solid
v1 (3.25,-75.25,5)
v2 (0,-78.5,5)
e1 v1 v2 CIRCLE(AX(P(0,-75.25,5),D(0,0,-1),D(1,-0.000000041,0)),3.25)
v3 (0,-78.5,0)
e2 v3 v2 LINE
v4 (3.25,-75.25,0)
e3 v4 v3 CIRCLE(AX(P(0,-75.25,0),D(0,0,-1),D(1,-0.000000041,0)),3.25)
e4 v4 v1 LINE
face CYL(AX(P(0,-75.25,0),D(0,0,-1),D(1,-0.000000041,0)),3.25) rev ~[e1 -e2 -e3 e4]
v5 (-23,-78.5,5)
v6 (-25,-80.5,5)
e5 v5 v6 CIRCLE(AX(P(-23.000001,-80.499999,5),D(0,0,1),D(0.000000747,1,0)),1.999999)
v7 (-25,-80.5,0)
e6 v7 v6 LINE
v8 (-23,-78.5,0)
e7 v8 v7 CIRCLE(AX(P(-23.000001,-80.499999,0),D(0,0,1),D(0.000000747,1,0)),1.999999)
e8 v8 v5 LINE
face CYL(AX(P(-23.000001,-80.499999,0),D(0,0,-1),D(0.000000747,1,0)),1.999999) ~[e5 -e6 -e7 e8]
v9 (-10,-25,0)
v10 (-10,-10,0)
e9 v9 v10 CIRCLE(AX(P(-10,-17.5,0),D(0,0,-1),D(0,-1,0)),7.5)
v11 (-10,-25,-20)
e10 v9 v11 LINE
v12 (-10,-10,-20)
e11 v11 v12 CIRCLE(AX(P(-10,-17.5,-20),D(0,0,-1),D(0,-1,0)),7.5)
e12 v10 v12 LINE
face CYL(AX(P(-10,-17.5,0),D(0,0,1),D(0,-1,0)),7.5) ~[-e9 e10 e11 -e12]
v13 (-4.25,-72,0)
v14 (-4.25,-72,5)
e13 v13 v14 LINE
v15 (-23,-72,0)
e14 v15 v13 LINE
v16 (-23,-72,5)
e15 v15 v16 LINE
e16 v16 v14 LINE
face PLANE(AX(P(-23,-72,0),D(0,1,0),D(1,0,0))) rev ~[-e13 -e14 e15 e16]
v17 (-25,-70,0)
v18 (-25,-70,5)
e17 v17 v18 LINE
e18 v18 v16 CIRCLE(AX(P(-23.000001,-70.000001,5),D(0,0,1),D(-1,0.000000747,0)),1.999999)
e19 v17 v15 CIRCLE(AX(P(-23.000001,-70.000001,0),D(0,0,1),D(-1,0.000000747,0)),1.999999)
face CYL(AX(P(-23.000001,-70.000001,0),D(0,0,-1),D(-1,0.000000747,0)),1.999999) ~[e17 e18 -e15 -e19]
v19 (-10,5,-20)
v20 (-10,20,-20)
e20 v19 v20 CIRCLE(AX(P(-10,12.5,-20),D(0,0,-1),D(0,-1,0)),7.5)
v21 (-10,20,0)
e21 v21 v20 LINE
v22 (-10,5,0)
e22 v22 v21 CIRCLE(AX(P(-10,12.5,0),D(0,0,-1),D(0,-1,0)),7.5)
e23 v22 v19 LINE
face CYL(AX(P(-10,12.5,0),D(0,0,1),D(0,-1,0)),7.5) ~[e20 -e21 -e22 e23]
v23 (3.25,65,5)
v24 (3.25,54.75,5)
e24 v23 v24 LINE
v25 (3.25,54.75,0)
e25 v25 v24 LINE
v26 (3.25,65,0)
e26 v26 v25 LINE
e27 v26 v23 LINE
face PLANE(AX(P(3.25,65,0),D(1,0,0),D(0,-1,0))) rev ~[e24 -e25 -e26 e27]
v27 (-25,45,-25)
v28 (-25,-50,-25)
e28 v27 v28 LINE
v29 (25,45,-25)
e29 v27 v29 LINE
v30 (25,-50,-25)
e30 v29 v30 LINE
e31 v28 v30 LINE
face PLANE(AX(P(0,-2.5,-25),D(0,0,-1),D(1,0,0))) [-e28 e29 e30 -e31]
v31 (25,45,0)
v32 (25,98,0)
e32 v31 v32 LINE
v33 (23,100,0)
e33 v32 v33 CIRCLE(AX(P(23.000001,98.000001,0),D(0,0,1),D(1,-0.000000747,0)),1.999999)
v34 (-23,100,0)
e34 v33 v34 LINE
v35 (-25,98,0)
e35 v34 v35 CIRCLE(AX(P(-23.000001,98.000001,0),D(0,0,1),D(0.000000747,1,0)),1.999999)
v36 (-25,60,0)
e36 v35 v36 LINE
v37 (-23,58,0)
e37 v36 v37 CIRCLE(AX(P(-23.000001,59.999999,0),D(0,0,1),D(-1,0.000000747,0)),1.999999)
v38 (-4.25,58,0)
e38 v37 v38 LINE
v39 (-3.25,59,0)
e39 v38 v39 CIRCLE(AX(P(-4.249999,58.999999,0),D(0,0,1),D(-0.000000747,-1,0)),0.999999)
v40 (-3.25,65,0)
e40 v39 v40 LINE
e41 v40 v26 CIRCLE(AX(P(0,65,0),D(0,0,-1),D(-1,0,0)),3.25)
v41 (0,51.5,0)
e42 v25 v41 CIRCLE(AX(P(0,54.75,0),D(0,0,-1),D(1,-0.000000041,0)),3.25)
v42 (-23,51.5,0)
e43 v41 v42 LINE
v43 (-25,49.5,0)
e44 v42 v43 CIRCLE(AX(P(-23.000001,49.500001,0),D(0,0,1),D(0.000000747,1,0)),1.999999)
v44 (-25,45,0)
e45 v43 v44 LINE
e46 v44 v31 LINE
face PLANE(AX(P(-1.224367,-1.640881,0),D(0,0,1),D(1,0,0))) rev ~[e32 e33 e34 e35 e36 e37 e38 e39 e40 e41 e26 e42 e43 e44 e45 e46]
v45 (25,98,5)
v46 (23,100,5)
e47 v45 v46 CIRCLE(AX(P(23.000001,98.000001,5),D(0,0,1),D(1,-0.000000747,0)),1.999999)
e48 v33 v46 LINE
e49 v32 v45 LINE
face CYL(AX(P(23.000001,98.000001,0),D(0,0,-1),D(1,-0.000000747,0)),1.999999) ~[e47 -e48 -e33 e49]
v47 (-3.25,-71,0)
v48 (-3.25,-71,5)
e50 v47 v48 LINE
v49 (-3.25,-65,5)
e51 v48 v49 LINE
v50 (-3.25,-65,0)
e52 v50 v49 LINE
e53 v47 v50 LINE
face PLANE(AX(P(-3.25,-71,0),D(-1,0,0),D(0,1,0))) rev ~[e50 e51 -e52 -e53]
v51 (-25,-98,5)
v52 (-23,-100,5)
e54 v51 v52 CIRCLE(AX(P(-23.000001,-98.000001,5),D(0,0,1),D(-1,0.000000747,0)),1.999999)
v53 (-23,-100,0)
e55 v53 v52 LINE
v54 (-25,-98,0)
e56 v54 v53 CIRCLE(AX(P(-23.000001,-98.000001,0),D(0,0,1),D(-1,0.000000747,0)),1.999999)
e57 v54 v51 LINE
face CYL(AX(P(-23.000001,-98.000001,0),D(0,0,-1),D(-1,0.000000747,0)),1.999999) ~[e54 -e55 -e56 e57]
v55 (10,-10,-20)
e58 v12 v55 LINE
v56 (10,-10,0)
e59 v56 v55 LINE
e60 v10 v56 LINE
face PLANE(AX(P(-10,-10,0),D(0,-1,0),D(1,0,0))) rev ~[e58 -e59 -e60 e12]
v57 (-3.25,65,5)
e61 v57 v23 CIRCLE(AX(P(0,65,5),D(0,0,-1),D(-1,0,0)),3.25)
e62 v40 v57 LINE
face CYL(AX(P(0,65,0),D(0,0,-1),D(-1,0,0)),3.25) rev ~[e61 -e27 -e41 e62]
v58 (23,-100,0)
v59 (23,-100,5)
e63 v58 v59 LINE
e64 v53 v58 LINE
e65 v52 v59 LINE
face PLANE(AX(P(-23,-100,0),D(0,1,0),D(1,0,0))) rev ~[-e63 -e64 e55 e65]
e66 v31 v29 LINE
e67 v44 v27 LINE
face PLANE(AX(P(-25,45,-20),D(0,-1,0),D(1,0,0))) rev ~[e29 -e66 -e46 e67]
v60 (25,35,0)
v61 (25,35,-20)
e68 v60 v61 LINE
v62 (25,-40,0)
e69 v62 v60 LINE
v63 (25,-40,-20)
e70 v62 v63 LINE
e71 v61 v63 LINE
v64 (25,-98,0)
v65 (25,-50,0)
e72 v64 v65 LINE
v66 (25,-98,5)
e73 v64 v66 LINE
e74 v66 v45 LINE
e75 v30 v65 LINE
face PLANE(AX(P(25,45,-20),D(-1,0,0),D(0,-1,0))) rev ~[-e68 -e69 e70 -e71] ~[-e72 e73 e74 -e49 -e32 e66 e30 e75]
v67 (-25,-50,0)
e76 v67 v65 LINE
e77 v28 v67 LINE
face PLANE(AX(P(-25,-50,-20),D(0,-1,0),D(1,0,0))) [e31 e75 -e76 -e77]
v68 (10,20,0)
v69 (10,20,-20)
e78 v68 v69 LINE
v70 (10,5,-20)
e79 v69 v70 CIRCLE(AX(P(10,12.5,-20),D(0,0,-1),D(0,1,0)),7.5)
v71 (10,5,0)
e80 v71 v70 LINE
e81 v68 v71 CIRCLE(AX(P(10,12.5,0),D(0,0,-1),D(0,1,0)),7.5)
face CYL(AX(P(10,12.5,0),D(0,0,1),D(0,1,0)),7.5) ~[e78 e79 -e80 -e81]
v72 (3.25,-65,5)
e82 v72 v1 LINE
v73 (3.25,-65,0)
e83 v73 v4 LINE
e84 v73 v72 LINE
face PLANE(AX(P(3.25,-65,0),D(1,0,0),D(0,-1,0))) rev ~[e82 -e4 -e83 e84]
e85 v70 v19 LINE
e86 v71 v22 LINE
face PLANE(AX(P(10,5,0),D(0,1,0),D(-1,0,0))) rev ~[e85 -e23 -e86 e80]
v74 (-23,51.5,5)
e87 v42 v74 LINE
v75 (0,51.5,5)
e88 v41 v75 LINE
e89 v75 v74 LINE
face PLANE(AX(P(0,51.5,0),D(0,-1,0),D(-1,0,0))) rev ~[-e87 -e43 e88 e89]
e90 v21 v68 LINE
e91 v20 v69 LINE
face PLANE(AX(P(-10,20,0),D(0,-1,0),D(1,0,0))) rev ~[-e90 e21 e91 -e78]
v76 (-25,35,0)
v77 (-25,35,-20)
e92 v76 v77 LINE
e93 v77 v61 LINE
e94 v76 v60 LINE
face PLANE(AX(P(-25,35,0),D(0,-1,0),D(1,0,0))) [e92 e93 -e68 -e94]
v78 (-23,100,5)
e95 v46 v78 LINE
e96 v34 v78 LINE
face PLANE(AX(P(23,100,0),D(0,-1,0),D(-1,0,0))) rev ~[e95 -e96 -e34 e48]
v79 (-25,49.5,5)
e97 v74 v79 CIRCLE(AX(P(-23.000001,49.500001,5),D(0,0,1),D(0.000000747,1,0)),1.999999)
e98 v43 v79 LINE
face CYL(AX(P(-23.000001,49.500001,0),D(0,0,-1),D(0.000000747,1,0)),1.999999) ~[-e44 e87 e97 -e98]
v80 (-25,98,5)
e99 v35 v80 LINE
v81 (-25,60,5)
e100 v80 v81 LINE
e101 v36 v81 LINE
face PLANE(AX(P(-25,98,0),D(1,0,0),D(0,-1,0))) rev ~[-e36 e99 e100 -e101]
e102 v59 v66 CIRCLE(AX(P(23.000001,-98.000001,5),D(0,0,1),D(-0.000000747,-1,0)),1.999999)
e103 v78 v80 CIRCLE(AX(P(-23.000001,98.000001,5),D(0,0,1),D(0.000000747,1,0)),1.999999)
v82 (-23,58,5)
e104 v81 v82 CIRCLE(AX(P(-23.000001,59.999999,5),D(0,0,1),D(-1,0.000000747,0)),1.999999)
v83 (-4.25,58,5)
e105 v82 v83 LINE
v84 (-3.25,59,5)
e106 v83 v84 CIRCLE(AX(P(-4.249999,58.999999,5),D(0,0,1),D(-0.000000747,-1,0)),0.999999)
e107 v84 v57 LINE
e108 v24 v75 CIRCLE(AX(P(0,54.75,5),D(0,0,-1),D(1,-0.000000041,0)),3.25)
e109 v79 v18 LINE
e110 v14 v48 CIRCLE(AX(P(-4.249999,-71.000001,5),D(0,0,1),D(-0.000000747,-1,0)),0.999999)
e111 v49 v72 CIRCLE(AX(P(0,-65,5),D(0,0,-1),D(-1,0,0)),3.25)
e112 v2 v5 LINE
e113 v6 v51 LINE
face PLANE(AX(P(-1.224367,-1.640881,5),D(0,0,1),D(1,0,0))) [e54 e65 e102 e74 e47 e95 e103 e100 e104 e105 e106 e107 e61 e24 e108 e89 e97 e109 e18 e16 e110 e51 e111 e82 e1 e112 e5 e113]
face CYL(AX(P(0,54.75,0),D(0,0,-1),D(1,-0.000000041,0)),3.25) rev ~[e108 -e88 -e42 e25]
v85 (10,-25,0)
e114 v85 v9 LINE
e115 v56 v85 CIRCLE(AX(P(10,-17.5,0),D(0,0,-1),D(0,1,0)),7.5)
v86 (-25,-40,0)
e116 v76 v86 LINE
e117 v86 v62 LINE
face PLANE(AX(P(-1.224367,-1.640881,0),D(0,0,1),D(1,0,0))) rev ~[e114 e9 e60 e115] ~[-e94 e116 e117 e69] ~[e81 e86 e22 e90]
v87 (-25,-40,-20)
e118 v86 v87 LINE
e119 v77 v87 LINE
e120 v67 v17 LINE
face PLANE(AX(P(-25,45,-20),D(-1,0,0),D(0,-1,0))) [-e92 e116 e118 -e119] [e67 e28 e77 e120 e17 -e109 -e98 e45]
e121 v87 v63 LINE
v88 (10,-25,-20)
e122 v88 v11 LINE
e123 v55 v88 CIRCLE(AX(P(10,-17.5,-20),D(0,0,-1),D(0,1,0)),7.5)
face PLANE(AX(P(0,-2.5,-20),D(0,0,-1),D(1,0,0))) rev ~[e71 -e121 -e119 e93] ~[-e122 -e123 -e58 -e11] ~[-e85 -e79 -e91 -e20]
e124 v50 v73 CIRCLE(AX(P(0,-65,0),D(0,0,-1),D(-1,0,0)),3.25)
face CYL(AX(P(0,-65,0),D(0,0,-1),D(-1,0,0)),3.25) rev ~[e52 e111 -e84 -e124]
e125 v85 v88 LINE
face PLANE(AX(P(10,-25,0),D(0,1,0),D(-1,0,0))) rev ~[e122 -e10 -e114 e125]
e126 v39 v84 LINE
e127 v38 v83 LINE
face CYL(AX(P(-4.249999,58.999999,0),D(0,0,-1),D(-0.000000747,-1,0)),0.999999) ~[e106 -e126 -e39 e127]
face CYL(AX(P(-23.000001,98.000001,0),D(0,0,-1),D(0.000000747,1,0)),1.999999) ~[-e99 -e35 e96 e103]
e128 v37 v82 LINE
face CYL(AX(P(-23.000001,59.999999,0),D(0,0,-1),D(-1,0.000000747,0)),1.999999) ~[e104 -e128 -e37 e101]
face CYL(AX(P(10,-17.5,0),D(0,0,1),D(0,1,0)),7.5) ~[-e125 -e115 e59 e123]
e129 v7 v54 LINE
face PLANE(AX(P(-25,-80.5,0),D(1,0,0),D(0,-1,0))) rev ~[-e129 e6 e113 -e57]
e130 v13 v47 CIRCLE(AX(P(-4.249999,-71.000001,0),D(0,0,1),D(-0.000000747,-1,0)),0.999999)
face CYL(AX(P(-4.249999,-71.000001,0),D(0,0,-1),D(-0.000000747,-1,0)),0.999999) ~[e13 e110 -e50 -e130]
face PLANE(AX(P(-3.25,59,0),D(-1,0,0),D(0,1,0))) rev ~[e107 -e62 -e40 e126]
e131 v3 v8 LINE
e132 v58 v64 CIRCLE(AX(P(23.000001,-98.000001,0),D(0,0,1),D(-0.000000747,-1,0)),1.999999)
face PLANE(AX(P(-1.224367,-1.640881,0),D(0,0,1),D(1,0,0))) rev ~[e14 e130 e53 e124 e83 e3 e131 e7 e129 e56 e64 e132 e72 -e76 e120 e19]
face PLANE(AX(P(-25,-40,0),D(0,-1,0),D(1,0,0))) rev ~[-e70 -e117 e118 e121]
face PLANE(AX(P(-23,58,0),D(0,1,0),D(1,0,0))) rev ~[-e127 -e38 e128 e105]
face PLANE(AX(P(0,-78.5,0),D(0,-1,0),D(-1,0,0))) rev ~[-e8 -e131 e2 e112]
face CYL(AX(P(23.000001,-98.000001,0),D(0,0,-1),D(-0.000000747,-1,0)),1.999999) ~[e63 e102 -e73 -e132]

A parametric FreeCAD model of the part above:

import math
import FreeCAD as App
import Part
import Sketcher

V = App.Vector


def add_polygon(sketch, points):
    """Adds a closed chain of lines whose ends are joined by coincident constraints."""
    first, n = sketch.GeometryCount, len(points)
    for a, b in zip(points, points[1:] + points[:1]):
        sketch.addGeometry(Part.LineSegment(App.Vector(*a, 0), App.Vector(*b, 0)), False)
    for i in range(n):
        sketch.addConstraint(Sketcher.Constraint("Coincident", first + i, 2, first + (i + 1) % n, 1))

doc = App.newDocument("Part")
body = doc.addObject("PartDesign::Body", "Body")

# Sketch on XY plane
sketch1 = body.newObject("Sketcher::SketchObject", "Sketch")
sketch1.AttachmentSupport = (doc.getObject("XY_Plane"), [""])
sketch1.MapMode = "FlatFace"
sketch1.addGeometry([
    Part.LineSegment(V(-23, -100, 0), V(23, -100, 0)),  # 0
    Part.ArcOfCircle(Part.Circle(V(23, -98, 0), V(0, 0, 1), 2), math.radians(-90), math.radians(0)),  # 1
    Part.LineSegment(V(25, -98, 0), V(25, 98, 0)),  # 2
    Part.ArcOfCircle(Part.Circle(V(23, 98, 0), V(0, 0, 1), 2), math.radians(0), math.radians(90)),  # 3
    Part.LineSegment(V(23, 100, 0), V(-23, 100, 0)),  # 4
    Part.ArcOfCircle(Part.Circle(V(-23, 98, 0), V(0, 0, 1), 2), math.radians(90), math.radians(180)),  # 5
    Part.LineSegment(V(-25, 98, 0), V(-25, 60, 0)),  # 6
    Part.ArcOfCircle(Part.Circle(V(-23, 60, 0), V(0, 0, 1), 2), math.radians(180), math.radians(270)),  # 7
    Part.LineSegment(V(-23, 58, 0), V(-4.2, 58, 0)),  # 8
    Part.ArcOfCircle(Part.Circle(V(-4.2, 59, 0), V(0, 0, 1), 1), math.radians(-90), math.radians(0)),  # 9
    Part.LineSegment(V(-3.2, 59, 0), V(-3.2, 65, 0)),  # 10
    Part.ArcOfCircle(Part.Circle(V(0, 65, 0), V(0, 0, 1), 3.2), math.radians(0), math.radians(180)),  # 11
    Part.LineSegment(V(3.2, 65, 0), V(3.2, 54.8, 0)),  # 12
    Part.ArcOfCircle(Part.Circle(V(0, 54.8, 0), V(0, 0, 1), 3.3), math.radians(-90), math.radians(0)),  # 13
    Part.LineSegment(V(0, 51.5, 0), V(-23, 51.5, 0)),  # 14
    Part.ArcOfCircle(Part.Circle(V(-23, 49.5, 0), V(0, 0, 1), 2), math.radians(90), math.radians(180)),  # 15
    Part.LineSegment(V(-25, 49.5, 0), V(-25, -70, 0)),  # 16
    Part.ArcOfCircle(Part.Circle(V(-23, -70, 0), V(0, 0, 1), 2), math.radians(180), math.radians(270)),  # 17
    Part.LineSegment(V(-23, -72, 0), V(-4.2, -72, 0)),  # 18
    Part.ArcOfCircle(Part.Circle(V(-4.2, -71, 0), V(0, 0, 1), 1), math.radians(-90), math.radians(0)),  # 19
    Part.LineSegment(V(-3.2, -71, 0), V(-3.2, -65, 0)),  # 20
    Part.ArcOfCircle(Part.Circle(V(0, -65, 0), V(0, 0, 1), 3.2), math.radians(0), math.radians(180)),  # 21
    Part.LineSegment(V(3.2, -65, 0), V(3.2, -75.2, 0)),  # 22
    Part.ArcOfCircle(Part.Circle(V(0, -75.2, 0), V(0, 0, 1), 3.3), math.radians(-90), math.radians(0)),  # 23
    Part.LineSegment(V(0, -78.5, 0), V(-23, -78.5, 0)),  # 24
    Part.ArcOfCircle(Part.Circle(V(-23, -80.5, 0), V(0, 0, 1), 2), math.radians(90), math.radians(180)),  # 25
    Part.LineSegment(V(-25, -80.5, 0), V(-25, -98, 0)),  # 26
    Part.ArcOfCircle(Part.Circle(V(-23, -98, 0), V(0, 0, 1), 2), math.radians(180), math.radians(270)),  # 27
], False)
sketch1.addConstraint([
    Sketcher.Constraint("Tangent", 0, 2, 1, 1),
    Sketcher.Constraint("Tangent", 1, 2, 2, 1),
    Sketcher.Constraint("Tangent", 2, 2, 3, 1),
    Sketcher.Constraint("Tangent", 3, 2, 4, 1),
    Sketcher.Constraint("Tangent", 4, 2, 5, 1),
    Sketcher.Constraint("Tangent", 5, 2, 6, 1),
    Sketcher.Constraint("Tangent", 6, 2, 7, 1),
    Sketcher.Constraint("Tangent", 7, 2, 8, 1),
    Sketcher.Constraint("Tangent", 8, 2, 9, 1),
    Sketcher.Constraint("Tangent", 9, 2, 10, 1),
    Sketcher.Constraint("Tangent", 10, 2, 11, 2),
    Sketcher.Constraint("Tangent", 11, 1, 12, 1),
    Sketcher.Constraint("Tangent", 12, 2, 13, 2),
    Sketcher.Constraint("Tangent", 13, 1, 14, 1),
    Sketcher.Constraint("Tangent", 14, 2, 15, 1),
    Sketcher.Constraint("Tangent", 15, 2, 16, 1),
    Sketcher.Constraint("Tangent", 16, 2, 17, 1),
    Sketcher.Constraint("Tangent", 17, 2, 18, 1),
    Sketcher.Constraint("Tangent", 18, 2, 19, 1),
    Sketcher.Constraint("Tangent", 19, 2, 20, 1),
    Sketcher.Constraint("Tangent", 20, 2, 21, 2),
    Sketcher.Constraint("Tangent", 21, 1, 22, 1),
    Sketcher.Constraint("Tangent", 22, 2, 23, 2),
    Sketcher.Constraint("Tangent", 23, 1, 24, 1),
    Sketcher.Constraint("Tangent", 24, 2, 25, 1),
    Sketcher.Constraint("Tangent", 25, 2, 26, 1),
    Sketcher.Constraint("Tangent", 26, 2, 27, 1),
    Sketcher.Constraint("Tangent", 27, 2, 0, 1),
    Sketcher.Constraint("Horizontal", 0),
    Sketcher.Constraint("Vertical", 2),
    Sketcher.Constraint("Horizontal", 4),
    Sketcher.Constraint("Vertical", 6),
    Sketcher.Constraint("Horizontal", 8),
    Sketcher.Constraint("Vertical", 10),
    Sketcher.Constraint("Vertical", 12),
    Sketcher.Constraint("Horizontal", 14),
    Sketcher.Constraint("Vertical", 16),
    Sketcher.Constraint("Horizontal", 18),
    Sketcher.Constraint("Vertical", 20),
    Sketcher.Constraint("Vertical", 22),
    Sketcher.Constraint("Horizontal", 24),
    Sketcher.Constraint("Vertical", 26),
    Sketcher.Constraint("Equal", 1, 3),
    Sketcher.Constraint("Equal", 3, 5),
    Sketcher.Constraint("Equal", 5, 7),
    Sketcher.Constraint("Equal", 11, 13),
    Sketcher.Constraint("Equal", 7, 15),
    Sketcher.Constraint("Equal", 15, 17),
    Sketcher.Constraint("Equal", 9, 19),
    Sketcher.Constraint("Equal", 13, 21),
    Sketcher.Constraint("Equal", 21, 23),
    Sketcher.Constraint("Equal", 17, 25),
    Sketcher.Constraint("Equal", 25, 27),
    Sketcher.Constraint("Symmetric", 1, 3, 5, 3, -1, 1),
    Sketcher.Constraint("Symmetric", 11, 3, 21, 3, -1, 1),
    Sketcher.Constraint("PointOnObject", 11, 3, -2),
    Sketcher.Constraint("Vertical", 7, 3, 15, 3),
    Sketcher.Constraint("Vertical", 17, 3, 25, 3),
    Sketcher.Constraint("Equal", 10, 20),
    Sketcher.Constraint("Equal", 12, 22),
    Sketcher.Constraint("Radius", 1, 1.999999),
    Sketcher.Constraint("Radius", 9, 0.999999),
    Sketcher.Constraint("DistanceX", 0, 1, 0, 2, 46.0),
    Sketcher.Constraint("DistanceY", 2, 1, 2, 2, 196.0),
    Sketcher.Constraint("DistanceY", 6, 2, 6, 1, 38.0),
    Sketcher.Constraint("DistanceY", 10, 1, 10, 2, 6.0),
    Sketcher.Constraint("Radius", 11, 3.25),
    Sketcher.Constraint("DistanceY", 16, 2, 16, 1, 119.5),
])
pad1 = body.newObject("PartDesign::Pad", "Pad")
pad1.Profile = sketch1
pad1.Length = 5

# Sketch on XY plane
sketch2 = body.newObject("Sketcher::SketchObject", "Sketch001")
sketch2.AttachmentSupport = (doc.getObject("XY_Plane"), [""])
sketch2.MapMode = "FlatFace"
sketch2.addGeometry(Part.LineSegment(V(10, -25, 0), V(-10, -25, 0)), False)  # 0
sketch2.addGeometry(Part.ArcOfCircle(Part.Circle(V(-10, -18, 0), V(0, 0, 1), 8), math.radians(90), math.radians(270)), False)  # 1
sketch2.addGeometry(Part.LineSegment(V(-10, -10, 0), V(10, -10, 0)), False)  # 2
sketch2.addGeometry(Part.ArcOfCircle(Part.Circle(V(10, -18, 0), V(0, 0, 1), 8), math.radians(-90), math.radians(90)), False)  # 3
sketch2.addGeometry(Part.LineSegment(V(10, 5, 0), V(-10, 5, 0)), False)  # 4
sketch2.addGeometry(Part.ArcOfCircle(Part.Circle(V(-10, 12, 0), V(0, 0, 1), 8), math.radians(90), math.radians(270)), False)  # 5
sketch2.addGeometry(Part.LineSegment(V(-10, 20, 0), V(10, 20, 0)), False)  # 6
sketch2.addGeometry(Part.ArcOfCircle(Part.Circle(V(10, 12, 0), V(0, 0, 1), 8), math.radians(-90), math.radians(90)), False)  # 7
add_polygon(sketch2, [(-25, -50), (-25, -40), (25, -40), (25, -50)])  # lines 8-11
add_polygon(sketch2, [(-25, 35), (-25, 45), (25, 45), (25, 35)])  # lines 12-15
sketch2.addConstraint([
    Sketcher.Constraint("Tangent", 0, 2, 1, 2),
    Sketcher.Constraint("Tangent", 1, 1, 2, 1),
    Sketcher.Constraint("Tangent", 2, 2, 3, 2),
    Sketcher.Constraint("Tangent", 3, 1, 0, 1),
    Sketcher.Constraint("Tangent", 4, 2, 5, 2),
    Sketcher.Constraint("Tangent", 5, 1, 6, 1),
    Sketcher.Constraint("Tangent", 6, 2, 7, 2),
    Sketcher.Constraint("Tangent", 7, 1, 4, 1),
    Sketcher.Constraint("Horizontal", 0),
    Sketcher.Constraint("Horizontal", 2),
    Sketcher.Constraint("Horizontal", 4),
    Sketcher.Constraint("Horizontal", 6),
    Sketcher.Constraint("Vertical", 8),
    Sketcher.Constraint("Horizontal", 9),
    Sketcher.Constraint("Vertical", 10),
    Sketcher.Constraint("Horizontal", 11),
    Sketcher.Constraint("Vertical", 12),
    Sketcher.Constraint("Horizontal", 13),
    Sketcher.Constraint("Vertical", 14),
    Sketcher.Constraint("Horizontal", 15),
    Sketcher.Constraint("Equal", 3, 5),
    Sketcher.Constraint("Vertical", 1, 3, 5, 3),
    Sketcher.Constraint("Vertical", 3, 3, 7, 3),
    Sketcher.Constraint("Vertical", 11, 2, 12, 2),
    Sketcher.Constraint("Vertical", 10, 2, 13, 2),
    Sketcher.Constraint("Equal", 10, 12),
    Sketcher.Constraint("Radius", 1, 7.5),
    Sketcher.Constraint("DistanceX", 0, 2, 0, 1, 20.0),
    Sketcher.Constraint("DistanceX", 9, 1, 9, 2, 50.0),
    Sketcher.Constraint("DistanceY", 8, 1, 8, 2, 10.0),
    Sketcher.Constraint("DistanceX", 1, 3, -1, 1, 10.0),
    Sketcher.Constraint("DistanceY", 0, 2, -1, 1, 25.0),
    Sketcher.Constraint("DistanceY", -1, 1, 4, 2, 5.0),
    Sketcher.Constraint("DistanceX", 8, 2, -1, 1, 25.0),
    Sketcher.Constraint("DistanceY", 8, 2, -1, 1, 40.0),
    Sketcher.Constraint("DistanceY", -1, 1, 12, 2, 45.0),
])
pad2 = body.newObject("PartDesign::Pad", "Pad001")
pad2.Profile = sketch2
pad2.Length = 20
pad2.Reversed = True

# Sketch on XY plane
sketch3 = body.newObject("Sketcher::SketchObject", "Sketch002")
sketch3.AttachmentSupport = (doc.getObject("XY_Plane"), [""])
sketch3.MapMode = "FlatFace"
sketch3.AttachmentOffset = App.Placement(V(0, 0, -20), App.Rotation())
add_polygon(sketch3, [(-25, -50), (-25, 45), (25, 45), (25, -50)])  # lines 0-3
sketch3.addConstraint([
    Sketcher.Constraint("Vertical", 0),
    Sketcher.Constraint("Horizontal", 1),
    Sketcher.Constraint("Vertical", 2),
    Sketcher.Constraint("Horizontal", 3),
    Sketcher.Constraint("DistanceX", 1, 1, 1, 2, 50.0),
    Sketcher.Constraint("DistanceY", 0, 1, 0, 2, 95.0),
    Sketcher.Constraint("DistanceX", 0, 2, -1, 1, 25.0),
    Sketcher.Constraint("DistanceY", -1, 1, 0, 2, 45.0),
])
pad3 = body.newObject("PartDesign::Pad", "Pad002")
pad3.Profile = sketch3
pad3.Length = 5
pad3.Reversed = True

doc.recompute()
